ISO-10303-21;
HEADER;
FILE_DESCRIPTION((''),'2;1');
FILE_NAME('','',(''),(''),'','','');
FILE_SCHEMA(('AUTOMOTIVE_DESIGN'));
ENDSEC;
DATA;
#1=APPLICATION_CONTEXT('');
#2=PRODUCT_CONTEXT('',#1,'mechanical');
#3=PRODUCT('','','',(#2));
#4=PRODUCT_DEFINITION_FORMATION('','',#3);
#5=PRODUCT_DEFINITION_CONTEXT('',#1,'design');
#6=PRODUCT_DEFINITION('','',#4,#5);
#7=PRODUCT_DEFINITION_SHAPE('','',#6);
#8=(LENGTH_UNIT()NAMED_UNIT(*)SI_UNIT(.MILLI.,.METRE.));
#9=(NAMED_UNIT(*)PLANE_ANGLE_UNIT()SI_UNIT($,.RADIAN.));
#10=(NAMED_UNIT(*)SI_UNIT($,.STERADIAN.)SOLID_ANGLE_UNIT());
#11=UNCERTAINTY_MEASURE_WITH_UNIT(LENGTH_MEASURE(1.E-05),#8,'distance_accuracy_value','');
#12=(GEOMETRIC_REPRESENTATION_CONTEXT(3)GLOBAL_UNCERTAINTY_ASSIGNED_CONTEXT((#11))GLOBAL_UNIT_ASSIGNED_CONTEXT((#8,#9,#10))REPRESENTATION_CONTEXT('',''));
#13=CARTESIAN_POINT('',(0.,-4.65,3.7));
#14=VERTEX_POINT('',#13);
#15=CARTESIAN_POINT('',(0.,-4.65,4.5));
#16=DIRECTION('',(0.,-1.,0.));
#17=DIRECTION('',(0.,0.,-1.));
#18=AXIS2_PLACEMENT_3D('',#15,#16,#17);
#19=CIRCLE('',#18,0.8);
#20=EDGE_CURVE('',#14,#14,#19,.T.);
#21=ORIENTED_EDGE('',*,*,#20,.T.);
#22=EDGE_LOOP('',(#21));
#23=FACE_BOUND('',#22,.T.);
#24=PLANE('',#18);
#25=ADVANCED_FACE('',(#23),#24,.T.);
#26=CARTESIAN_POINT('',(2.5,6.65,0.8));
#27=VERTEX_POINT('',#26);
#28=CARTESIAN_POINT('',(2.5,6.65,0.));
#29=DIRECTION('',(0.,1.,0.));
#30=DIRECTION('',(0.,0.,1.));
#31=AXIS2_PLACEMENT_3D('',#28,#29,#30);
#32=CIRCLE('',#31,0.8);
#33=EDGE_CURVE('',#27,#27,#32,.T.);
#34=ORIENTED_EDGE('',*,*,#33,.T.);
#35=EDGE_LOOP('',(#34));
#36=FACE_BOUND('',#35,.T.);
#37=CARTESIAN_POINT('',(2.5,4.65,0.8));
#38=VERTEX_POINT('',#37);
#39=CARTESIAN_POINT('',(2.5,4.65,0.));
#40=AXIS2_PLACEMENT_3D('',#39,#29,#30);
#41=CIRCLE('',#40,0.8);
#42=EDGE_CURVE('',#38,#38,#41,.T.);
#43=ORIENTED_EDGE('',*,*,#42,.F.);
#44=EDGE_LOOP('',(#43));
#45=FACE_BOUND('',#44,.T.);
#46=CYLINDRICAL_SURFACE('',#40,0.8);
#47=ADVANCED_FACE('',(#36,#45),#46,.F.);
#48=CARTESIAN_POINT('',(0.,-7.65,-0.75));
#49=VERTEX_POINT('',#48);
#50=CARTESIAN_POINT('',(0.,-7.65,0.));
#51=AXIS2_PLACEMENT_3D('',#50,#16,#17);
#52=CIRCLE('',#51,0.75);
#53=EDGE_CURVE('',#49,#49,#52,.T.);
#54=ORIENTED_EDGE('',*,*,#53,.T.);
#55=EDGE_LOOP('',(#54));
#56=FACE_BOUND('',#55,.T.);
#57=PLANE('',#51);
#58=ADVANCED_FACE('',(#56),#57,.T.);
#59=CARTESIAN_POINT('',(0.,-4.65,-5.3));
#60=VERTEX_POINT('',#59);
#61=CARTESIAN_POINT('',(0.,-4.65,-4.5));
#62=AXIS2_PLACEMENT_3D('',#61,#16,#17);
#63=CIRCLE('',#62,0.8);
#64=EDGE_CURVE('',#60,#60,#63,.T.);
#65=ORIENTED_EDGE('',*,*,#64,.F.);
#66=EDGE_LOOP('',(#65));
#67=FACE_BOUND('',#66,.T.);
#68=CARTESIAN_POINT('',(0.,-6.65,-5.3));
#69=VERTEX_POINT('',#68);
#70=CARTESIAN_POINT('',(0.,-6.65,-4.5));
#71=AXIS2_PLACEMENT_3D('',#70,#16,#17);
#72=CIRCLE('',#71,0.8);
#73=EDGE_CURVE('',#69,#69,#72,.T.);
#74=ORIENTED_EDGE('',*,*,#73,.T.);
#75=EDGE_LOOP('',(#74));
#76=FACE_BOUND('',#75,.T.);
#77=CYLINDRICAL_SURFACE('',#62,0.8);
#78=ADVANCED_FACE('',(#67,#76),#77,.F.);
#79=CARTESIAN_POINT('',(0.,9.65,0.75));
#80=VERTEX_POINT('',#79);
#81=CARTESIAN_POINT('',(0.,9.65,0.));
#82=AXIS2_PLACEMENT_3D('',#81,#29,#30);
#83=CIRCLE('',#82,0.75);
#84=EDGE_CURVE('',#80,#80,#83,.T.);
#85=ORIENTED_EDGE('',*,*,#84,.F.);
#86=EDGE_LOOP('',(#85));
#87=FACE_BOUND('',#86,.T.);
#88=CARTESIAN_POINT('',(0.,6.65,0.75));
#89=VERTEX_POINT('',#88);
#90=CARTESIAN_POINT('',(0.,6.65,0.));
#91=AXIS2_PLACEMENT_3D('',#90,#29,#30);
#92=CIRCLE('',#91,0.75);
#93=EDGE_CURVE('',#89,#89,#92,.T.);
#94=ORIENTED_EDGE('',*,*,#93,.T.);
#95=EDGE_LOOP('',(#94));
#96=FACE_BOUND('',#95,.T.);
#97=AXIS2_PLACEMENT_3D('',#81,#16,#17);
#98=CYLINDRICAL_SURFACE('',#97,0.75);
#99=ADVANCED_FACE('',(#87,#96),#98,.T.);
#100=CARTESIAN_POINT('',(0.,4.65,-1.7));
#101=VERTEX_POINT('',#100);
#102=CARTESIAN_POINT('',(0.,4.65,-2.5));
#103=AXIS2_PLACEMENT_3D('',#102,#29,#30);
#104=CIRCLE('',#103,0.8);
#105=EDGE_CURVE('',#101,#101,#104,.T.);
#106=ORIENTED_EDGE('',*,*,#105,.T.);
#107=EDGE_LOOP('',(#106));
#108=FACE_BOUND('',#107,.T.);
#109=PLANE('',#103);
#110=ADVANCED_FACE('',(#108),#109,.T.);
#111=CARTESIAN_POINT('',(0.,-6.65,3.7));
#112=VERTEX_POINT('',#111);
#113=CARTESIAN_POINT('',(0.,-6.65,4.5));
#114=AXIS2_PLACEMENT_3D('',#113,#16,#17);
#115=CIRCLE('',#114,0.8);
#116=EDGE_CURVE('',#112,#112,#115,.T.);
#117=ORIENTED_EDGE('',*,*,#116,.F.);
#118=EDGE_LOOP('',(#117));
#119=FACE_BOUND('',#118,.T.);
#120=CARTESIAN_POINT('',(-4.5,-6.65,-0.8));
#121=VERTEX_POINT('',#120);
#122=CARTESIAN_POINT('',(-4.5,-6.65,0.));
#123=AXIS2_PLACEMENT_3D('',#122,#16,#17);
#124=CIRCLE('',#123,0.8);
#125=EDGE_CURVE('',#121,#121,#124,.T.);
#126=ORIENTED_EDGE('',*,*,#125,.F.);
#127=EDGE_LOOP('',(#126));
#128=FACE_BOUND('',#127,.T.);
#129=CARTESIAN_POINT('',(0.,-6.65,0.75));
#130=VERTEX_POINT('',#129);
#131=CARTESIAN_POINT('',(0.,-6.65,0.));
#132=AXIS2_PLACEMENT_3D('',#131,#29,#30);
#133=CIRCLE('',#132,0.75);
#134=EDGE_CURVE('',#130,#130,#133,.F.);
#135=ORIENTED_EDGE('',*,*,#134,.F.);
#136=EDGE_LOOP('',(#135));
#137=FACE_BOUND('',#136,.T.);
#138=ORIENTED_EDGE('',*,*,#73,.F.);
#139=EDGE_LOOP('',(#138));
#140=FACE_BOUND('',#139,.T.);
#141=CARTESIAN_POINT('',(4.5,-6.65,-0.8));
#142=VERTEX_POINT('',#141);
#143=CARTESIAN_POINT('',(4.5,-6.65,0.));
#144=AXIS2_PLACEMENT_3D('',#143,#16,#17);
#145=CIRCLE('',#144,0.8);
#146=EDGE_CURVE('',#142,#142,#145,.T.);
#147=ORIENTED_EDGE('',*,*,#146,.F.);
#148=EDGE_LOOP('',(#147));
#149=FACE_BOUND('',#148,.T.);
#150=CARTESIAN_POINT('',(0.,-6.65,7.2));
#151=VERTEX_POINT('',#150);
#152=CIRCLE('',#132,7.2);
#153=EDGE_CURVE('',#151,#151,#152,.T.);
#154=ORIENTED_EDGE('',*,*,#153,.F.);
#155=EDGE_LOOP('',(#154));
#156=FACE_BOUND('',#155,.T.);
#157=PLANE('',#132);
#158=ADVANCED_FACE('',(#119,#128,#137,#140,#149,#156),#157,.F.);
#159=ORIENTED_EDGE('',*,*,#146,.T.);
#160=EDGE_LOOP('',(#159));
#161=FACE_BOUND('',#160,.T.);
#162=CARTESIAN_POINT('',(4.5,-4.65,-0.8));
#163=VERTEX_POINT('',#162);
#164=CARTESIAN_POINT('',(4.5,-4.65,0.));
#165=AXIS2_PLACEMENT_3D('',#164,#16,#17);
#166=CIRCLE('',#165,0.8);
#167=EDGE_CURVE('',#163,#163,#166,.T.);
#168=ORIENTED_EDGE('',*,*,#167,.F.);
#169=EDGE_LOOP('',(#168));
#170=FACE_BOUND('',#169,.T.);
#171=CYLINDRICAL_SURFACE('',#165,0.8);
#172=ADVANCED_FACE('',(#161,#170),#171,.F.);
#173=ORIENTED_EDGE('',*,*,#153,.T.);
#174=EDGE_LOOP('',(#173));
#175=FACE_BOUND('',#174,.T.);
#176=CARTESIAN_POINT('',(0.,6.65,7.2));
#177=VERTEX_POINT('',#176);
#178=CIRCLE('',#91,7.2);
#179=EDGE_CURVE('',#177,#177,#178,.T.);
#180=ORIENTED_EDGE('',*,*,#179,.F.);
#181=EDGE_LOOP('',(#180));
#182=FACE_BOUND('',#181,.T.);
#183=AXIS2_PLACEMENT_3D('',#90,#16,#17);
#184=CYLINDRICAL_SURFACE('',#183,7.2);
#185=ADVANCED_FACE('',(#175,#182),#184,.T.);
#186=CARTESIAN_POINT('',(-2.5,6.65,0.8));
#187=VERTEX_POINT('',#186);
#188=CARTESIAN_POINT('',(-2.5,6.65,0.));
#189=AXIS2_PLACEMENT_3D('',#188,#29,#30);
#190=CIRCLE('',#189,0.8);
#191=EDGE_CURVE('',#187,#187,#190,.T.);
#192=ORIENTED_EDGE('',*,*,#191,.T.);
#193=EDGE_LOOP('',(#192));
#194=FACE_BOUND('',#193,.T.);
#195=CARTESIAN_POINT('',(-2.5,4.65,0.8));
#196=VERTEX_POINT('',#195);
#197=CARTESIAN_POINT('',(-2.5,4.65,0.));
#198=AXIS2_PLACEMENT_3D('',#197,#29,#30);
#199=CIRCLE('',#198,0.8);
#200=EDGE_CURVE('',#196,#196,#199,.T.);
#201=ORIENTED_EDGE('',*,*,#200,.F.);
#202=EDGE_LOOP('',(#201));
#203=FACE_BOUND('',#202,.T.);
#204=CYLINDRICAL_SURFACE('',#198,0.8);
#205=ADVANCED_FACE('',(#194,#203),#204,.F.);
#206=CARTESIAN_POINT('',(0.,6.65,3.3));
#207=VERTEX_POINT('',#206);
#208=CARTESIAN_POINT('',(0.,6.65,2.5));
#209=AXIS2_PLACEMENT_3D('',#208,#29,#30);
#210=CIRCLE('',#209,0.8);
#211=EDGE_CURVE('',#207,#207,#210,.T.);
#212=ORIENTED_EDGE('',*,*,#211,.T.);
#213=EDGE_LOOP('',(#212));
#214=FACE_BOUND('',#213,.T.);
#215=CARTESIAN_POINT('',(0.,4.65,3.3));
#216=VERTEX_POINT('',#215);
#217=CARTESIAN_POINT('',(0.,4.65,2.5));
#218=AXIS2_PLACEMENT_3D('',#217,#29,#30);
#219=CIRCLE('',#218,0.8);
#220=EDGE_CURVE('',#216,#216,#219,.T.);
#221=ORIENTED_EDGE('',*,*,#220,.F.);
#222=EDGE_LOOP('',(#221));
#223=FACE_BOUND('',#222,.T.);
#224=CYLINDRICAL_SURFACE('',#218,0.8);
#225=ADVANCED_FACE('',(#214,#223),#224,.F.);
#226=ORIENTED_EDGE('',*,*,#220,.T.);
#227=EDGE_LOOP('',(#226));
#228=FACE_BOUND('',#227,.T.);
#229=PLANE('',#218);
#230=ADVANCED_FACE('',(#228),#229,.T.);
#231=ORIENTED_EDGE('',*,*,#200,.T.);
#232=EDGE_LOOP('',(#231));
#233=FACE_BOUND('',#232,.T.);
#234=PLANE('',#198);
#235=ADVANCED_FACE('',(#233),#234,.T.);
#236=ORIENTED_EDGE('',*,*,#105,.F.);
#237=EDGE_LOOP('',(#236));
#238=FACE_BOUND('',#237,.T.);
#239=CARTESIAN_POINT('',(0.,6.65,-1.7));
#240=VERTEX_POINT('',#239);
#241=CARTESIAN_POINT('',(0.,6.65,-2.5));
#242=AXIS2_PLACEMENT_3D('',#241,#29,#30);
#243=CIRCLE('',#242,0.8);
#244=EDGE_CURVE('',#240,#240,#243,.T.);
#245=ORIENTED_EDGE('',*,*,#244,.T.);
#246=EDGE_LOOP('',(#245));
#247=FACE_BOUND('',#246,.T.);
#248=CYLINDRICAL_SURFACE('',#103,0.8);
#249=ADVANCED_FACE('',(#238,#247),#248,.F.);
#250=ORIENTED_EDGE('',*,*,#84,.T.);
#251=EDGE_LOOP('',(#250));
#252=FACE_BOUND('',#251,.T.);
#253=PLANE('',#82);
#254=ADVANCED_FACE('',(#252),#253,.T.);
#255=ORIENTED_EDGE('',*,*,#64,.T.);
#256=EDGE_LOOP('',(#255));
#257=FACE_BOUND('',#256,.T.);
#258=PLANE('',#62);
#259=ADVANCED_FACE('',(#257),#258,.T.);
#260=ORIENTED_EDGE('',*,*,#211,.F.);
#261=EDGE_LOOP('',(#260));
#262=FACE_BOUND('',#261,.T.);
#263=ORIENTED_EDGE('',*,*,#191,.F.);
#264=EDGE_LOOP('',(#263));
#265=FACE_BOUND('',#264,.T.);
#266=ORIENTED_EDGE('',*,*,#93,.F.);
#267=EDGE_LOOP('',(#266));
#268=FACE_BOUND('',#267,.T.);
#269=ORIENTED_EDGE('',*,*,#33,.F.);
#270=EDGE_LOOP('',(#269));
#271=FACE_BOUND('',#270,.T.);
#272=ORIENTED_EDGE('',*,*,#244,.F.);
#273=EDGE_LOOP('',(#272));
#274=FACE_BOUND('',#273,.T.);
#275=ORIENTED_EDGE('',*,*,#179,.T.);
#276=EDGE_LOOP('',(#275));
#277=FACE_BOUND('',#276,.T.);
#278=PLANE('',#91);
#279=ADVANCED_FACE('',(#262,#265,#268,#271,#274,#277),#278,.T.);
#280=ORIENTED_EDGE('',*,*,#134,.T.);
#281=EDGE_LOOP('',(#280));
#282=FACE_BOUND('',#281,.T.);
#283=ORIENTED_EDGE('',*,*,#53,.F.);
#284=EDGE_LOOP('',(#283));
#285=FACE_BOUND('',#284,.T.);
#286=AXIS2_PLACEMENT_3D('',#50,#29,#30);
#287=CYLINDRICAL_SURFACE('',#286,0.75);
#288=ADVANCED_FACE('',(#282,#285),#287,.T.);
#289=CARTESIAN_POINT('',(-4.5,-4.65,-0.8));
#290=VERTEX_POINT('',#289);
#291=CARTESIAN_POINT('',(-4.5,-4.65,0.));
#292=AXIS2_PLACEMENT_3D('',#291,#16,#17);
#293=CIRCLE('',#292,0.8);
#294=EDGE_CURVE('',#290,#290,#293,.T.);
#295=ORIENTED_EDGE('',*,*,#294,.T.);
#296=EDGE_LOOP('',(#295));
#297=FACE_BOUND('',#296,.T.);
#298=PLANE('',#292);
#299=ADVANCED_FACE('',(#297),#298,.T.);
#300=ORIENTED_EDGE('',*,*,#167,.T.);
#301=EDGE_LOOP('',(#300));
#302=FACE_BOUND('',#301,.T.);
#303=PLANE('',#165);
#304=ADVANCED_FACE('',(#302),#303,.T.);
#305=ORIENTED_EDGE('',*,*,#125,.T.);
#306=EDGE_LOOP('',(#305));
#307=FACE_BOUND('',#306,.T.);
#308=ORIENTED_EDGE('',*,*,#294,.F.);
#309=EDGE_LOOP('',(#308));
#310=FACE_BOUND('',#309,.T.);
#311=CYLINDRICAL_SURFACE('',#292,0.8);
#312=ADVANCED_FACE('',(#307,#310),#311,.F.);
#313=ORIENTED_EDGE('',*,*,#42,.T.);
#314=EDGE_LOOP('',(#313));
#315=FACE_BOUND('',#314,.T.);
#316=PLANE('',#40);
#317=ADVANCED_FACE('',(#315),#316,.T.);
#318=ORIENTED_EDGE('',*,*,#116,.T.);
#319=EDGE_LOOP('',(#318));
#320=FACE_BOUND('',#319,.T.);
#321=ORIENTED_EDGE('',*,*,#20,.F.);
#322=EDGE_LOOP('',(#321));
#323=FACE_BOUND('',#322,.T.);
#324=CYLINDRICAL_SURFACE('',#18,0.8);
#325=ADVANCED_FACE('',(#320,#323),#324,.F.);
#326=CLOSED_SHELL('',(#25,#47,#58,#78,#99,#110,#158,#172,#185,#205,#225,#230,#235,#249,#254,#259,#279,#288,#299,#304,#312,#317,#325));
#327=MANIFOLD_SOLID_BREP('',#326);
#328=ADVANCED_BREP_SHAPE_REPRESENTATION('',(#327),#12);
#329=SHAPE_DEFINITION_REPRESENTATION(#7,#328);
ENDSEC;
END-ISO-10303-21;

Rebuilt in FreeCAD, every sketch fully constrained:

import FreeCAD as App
import Part
import Sketcher

V = App.Vector
Q = App.Units.Quantity

doc = App.newDocument("Part")
params = doc.addObject("Spreadsheet::Sheet", "Params")
for row, (alias, value) in enumerate([
    ("sketch1_diameter", "14.4 mm"),
    ("pad1_length", "13.3 mm"),
    ("sketch2_diameter", "1.5 mm"),
    ("pad2_length", "1 mm"),
    ("sketch3_diameter", "1.5 mm"),
    ("pad3_length", "3 mm"),
    ("sketch4_diameter", "1.6 mm"),
    ("pocket1_length", "2 mm"),
    ("sketch5_diameter", "1.6 mm"),
    ("pocket2_length", "2 mm"),
], start=1):
    params.set(f"A{row}", alias)
    params.set(f"B{row}", "=" + value)
    params.setAlias(f"B{row}", alias)

body = doc.addObject("PartDesign::Body", "Body")

sketch1 = body.newObject("Sketcher::SketchObject", "Sketch")
sketch1.AttachmentSupport = (doc.getObject("XZ_Plane"), [""])
sketch1.MapMode = "FlatFace"
sketch1.addGeometry(Part.Circle(V(0, 0, 0), V(0, 0, 1), 7), False)
sketch1.addConstraint(Sketcher.Constraint("Coincident", 0, 3, -1, 1))
sketch1.addConstraint(Sketcher.Constraint("Diameter", 0, Q("14.4 mm")))
sketch1.setExpression("Constraints[1]", "Params.sketch1_diameter")
pad1 = body.newObject("PartDesign::Pad", "Pad")
pad1.Profile = sketch1
pad1.setExpression("Length", "Params.pad1_length")
pad1.Midplane = True

sketch2 = body.newObject("Sketcher::SketchObject", "Sketch001")
sketch2.AttachmentSupport = (doc.getObject("XZ_Plane"), [""])
sketch2.MapMode = "FlatFace"
sketch2.AttachmentOffset = App.Placement(V(0, 0, 6.65), App.Rotation())
sketch2.addGeometry(Part.Circle(V(0, 0, 0), V(0, 0, 1), 0.8), False)
sketch2.addConstraint(Sketcher.Constraint("Coincident", 0, 3, -1, 1))
sketch2.addConstraint(Sketcher.Constraint("Diameter", 0, Q("1.5 mm")))
sketch2.setExpression("Constraints[1]", "Params.sketch2_diameter")
pad2 = body.newObject("PartDesign::Pad", "Pad001")
pad2.Profile = sketch2
pad2.setExpression("Length", "Params.pad2_length")

sketch3 = body.newObject("Sketcher::SketchObject", "Sketch002")
sketch3.AttachmentSupport = (doc.getObject("XZ_Plane"), [""])
sketch3.MapMode = "FlatFace"
sketch3.AttachmentOffset = App.Placement(V(0, 0, -9.65), App.Rotation())
sketch3.addGeometry(Part.Circle(V(0, 0, 0), V(0, 0, 1), 0.8), False)
sketch3.addConstraint(Sketcher.Constraint("Coincident", 0, 3, -1, 1))
sketch3.addConstraint(Sketcher.Constraint("Diameter", 0, Q("1.5 mm")))
sketch3.setExpression("Constraints[1]", "Params.sketch3_diameter")
pad3 = body.newObject("PartDesign::Pad", "Pad002")
pad3.Profile = sketch3
pad3.setExpression("Length", "Params.pad3_length")

sketch4 = body.newObject("Sketcher::SketchObject", "Sketch003")
sketch4.AttachmentSupport = (doc.getObject("XZ_Plane"), [""])
sketch4.MapMode = "FlatFace"
sketch4.AttachmentOffset = App.Placement(V(0, 0, 6.65), App.Rotation())
sketch4.addGeometry(Part.Circle(V(0, 4.5, 0), V(0, 0, 1), 0.8), False)
sketch4.addGeometry(Part.Circle(V(4.5, 0, 0), V(0, 0, 1), 0.8), False)
sketch4.addGeometry(Part.Circle(V(0, -4.5, 0), V(0, 0, 1), 0.8), False)
sketch4.addGeometry(Part.Circle(V(-4.5, 0, 0), V(0, 0, 1), 0.8), False)
sketch4.addConstraint(Sketcher.Constraint("Equal", 0, 1))
sketch4.addConstraint(Sketcher.Constraint("Equal", 1, 2))
sketch4.addConstraint(Sketcher.Constraint("Equal", 2, 3))
sketch4.addConstraint(Sketcher.Constraint("Symmetric", 0, 3, 2, 3, -1, 1))
sketch4.addConstraint(Sketcher.Constraint("Symmetric", 1, 3, 3, 3, -1, 1))
sketch4.addConstraint(Sketcher.Constraint("PointOnObject", 0, 3, -2))
sketch4.addConstraint(Sketcher.Constraint("PointOnObject", 1, 3, -1))
sketch4.addConstraint(Sketcher.Constraint("Diameter", 0, Q("1.6 mm")))
sketch4.addConstraint(Sketcher.Constraint("DistanceY", 2, 3, 0, 3, Q("9 mm")))
sketch4.addConstraint(Sketcher.Constraint("DistanceX", 3, 3, 1, 3, Q("9 mm")))
sketch4.setExpression("Constraints[7]", "Params.sketch4_diameter")
pocket1 = body.newObject("PartDesign::Pocket", "Pocket")
pocket1.Profile = sketch4
pocket1.setExpression("Length", "Params.pocket1_length")

sketch5 = body.newObject("Sketcher::SketchObject", "Sketch004")
sketch5.AttachmentSupport = (doc.getObject("XZ_Plane"), [""])
sketch5.MapMode = "FlatFace"
sketch5.AttachmentOffset = App.Placement(V(0, 0, -6.65), App.Rotation())
sketch5.addGeometry(Part.Circle(V(2.5, 0, 0), V(0, 0, 1), 0.8), False)
sketch5.addGeometry(Part.Circle(V(0, 2.5, 0), V(0, 0, 1), 0.8), False)
sketch5.addGeometry(Part.Circle(V(-2.5, 0, 0), V(0, 0, 1), 0.8), False)
sketch5.addGeometry(Part.Circle(V(0, -2.5, 0), V(0, 0, 1), 0.8), False)
sketch5.addConstraint(Sketcher.Constraint("Equal", 0, 1))
sketch5.addConstraint(Sketcher.Constraint("Equal", 1, 2))
sketch5.addConstraint(Sketcher.Constraint("Equal", 2, 3))
sketch5.addConstraint(Sketcher.Constraint("Symmetric", 0, 3, 2, 3, -1, 1))
sketch5.addConstraint(Sketcher.Constraint("Symmetric", 1, 3, 3, 3, -1, 1))
sketch5.addConstraint(Sketcher.Constraint("PointOnObject", 0, 3, -1))
sketch5.addConstraint(Sketcher.Constraint("PointOnObject", 1, 3, -2))
sketch5.addConstraint(Sketcher.Constraint("Diameter", 0, Q("1.6 mm")))
sketch5.addConstraint(Sketcher.Constraint("DistanceX", 2, 3, 0, 3, Q("5 mm")))
sketch5.addConstraint(Sketcher.Constraint("DistanceY", 3, 3, 1, 3, Q("5 mm")))
sketch5.setExpression("Constraints[7]", "Params.sketch5_diameter")
pocket2 = body.newObject("PartDesign::Pocket", "Pocket001")
pocket2.Profile = sketch5
pocket2.setExpression("Length", "Params.pocket2_length")
pocket2.Reversed = True

doc.recompute()
